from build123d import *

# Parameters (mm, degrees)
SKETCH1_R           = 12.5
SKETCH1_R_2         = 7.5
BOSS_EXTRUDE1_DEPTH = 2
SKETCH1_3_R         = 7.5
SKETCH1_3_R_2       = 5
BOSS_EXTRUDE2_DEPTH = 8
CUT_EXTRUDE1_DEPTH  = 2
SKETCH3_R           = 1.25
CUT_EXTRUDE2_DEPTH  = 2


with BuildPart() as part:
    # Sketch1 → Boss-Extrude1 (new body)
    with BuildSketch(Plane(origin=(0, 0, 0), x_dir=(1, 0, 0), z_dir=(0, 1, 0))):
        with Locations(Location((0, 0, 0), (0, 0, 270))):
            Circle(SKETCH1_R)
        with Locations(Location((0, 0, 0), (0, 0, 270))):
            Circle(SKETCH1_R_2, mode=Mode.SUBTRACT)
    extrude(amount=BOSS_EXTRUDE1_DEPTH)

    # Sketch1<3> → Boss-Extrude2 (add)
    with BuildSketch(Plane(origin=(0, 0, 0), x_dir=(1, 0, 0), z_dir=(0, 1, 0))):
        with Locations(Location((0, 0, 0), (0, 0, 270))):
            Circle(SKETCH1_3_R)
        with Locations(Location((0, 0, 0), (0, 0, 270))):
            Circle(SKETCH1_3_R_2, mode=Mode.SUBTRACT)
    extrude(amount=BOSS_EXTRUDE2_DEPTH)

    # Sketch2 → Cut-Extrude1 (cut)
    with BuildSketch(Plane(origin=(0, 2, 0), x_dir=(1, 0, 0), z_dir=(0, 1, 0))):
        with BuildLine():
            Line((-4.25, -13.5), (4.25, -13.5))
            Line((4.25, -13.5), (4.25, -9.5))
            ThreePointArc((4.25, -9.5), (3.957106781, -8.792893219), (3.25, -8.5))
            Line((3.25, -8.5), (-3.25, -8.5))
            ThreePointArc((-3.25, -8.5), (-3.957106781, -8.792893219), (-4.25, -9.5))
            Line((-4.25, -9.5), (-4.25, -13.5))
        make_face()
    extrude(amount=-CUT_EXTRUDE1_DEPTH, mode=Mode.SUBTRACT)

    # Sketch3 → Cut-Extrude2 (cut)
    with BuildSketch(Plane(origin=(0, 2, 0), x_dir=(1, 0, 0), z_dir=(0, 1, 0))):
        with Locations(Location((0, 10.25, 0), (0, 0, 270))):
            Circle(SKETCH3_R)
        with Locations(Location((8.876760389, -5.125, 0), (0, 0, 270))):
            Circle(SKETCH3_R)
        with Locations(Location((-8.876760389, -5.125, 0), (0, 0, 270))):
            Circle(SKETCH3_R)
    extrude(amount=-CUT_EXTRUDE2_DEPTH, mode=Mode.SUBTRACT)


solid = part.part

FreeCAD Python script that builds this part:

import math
import FreeCAD as App
import Part
import Sketcher
Q = App.Units.Quantity

doc = App.newDocument("Part")
body = doc.addObject("PartDesign::Body", "Body")

sketch1 = body.newObject("Sketcher::SketchObject", "Sketch")
sketch1.AttachmentSupport = (doc.getObject("XZ_Plane"), [""])
sketch1.MapMode = "FlatFace"
sketch1.addGeometry([
    Part.Circle(App.Vector(0, 0, 0), App.Vector(0, 0, 1), 12),
    Part.Circle(App.Vector(0, 0, 0), App.Vector(0, 0, 1), 8),
], False)
sketch1.addConstraint([
    Sketcher.Constraint("Coincident", 0, 3, -1, 1),
    Sketcher.Constraint("Coincident", 1, 3, -1, 1),
    Sketcher.Constraint("Diameter", 0, Q("25 mm")),
    Sketcher.Constraint("Diameter", 1, Q("15 mm")),
])
pad1 = body.newObject("PartDesign::Pad", "Pad")
pad1.Profile = sketch1
pad1.Length = 2
pad1.Reversed = True

sketch2 = body.newObject("Sketcher::SketchObject", "Sketch001")
sketch2.AttachmentSupport = (doc.getObject("XZ_Plane"), [""])
sketch2.MapMode = "FlatFace"
sketch2.addGeometry([
    Part.Circle(App.Vector(0, 0, 0), App.Vector(0, 0, 1), 8),
    Part.Circle(App.Vector(0, 0, 0), App.Vector(0, 0, 1), 5),
], False)
sketch2.addConstraint([
    Sketcher.Constraint("Coincident", 0, 3, -1, 1),
    Sketcher.Constraint("Coincident", 1, 3, -1, 1),
    Sketcher.Constraint("Diameter", 0, Q("15 mm")),
    Sketcher.Constraint("Diameter", 1, Q("10 mm")),
])
pad2 = body.newObject("PartDesign::Pad", "Pad001")
pad2.Profile = sketch2
pad2.Length = 8
pad2.Reversed = True

sketch3 = body.newObject("Sketcher::SketchObject", "Sketch002")
sketch3.AttachmentSupport = (doc.getObject("XZ_Plane"), [""])
sketch3.MapMode = "FlatFace"
sketch3.AttachmentOffset = App.Placement(App.Vector(0, 0, -2), App.Rotation())
sketch3.addGeometry([
    Part.LineSegment(App.Vector(-4.2, 13.5, 0), App.Vector(4.2, 13.5, 0)),
    Part.LineSegment(App.Vector(4.2, 13.5, 0), App.Vector(4.2, 9.5, 0)),
    Part.ArcOfCircle(Part.Circle(App.Vector(3.2, 9.5, 0), App.Vector(0, 0, 1), 1), math.radians(-90), math.radians(0)),
    Part.LineSegment(App.Vector(3.2, 8.5, 0), App.Vector(-3.2, 8.5, 0)),
    Part.ArcOfCircle(Part.Circle(App.Vector(-3.2, 9.5, 0), App.Vector(0, 0, 1), 1), math.radians(-180), math.radians(-90)),
    Part.LineSegment(App.Vector(-4.2, 9.5, 0), App.Vector(-4.2, 13.5, 0)),
], False)
sketch3.addConstraint([
    Sketcher.Constraint("Coincident", 0, 2, 1, 1),
    Sketcher.Constraint("Tangent", 1, 2, 2, 2),
    Sketcher.Constraint("Tangent", 2, 1, 3, 1),
    Sketcher.Constraint("Tangent", 3, 2, 4, 2),
    Sketcher.Constraint("Tangent", 4, 1, 5, 1),
    Sketcher.Constraint("Coincident", 5, 2, 0, 1),
    Sketcher.Constraint("Horizontal", 0),
    Sketcher.Constraint("Vertical", 1),
    Sketcher.Constraint("Horizontal", 3),
    Sketcher.Constraint("Vertical", 5),
    Sketcher.Constraint("Equal", 2, 4),
    Sketcher.Constraint("Radius", 2, Q("1 mm")),
    Sketcher.Constraint("DistanceY", 1, 2, 1, 1, Q("4 mm")),
    Sketcher.Constraint("DistanceX", 0, 1, 0, 2, Q("8.5 mm")),
    Sketcher.Constraint("DistanceY", -1, 1, 2, 3, Q("9.5 mm")),
    Sketcher.Constraint("DistanceX", -1, 1, 2, 3, Q("3.25 mm")),
])
pocket1 = body.newObject("PartDesign::Pocket", "Pocket")
pocket1.Profile = sketch3
pocket1.Length = 2
pocket1.Reversed = True

sketch4 = body.newObject("Sketcher::SketchObject", "Sketch003")
sketch4.AttachmentSupport = (doc.getObject("XZ_Plane"), [""])
sketch4.MapMode = "FlatFace"
sketch4.AttachmentOffset = App.Placement(App.Vector(0, 0, -2), App.Rotation())
sketch4.addGeometry([
    Part.Circle(App.Vector(0, -10.2, 0), App.Vector(0, 0, 1), 1.2),
    Part.Circle(App.Vector(8.9, 5.1, 0), App.Vector(0, 0, 1), 1.2),
    Part.Circle(App.Vector(-8.9, 5.1, 0), App.Vector(0, 0, 1), 1.2),
], False)
sketch4.addConstraint([
    Sketcher.Constraint("Equal", 0, 1),
    Sketcher.Constraint("Equal", 1, 2),
    Sketcher.Constraint("Symmetric", 1, 3, 2, 3, -2),
    Sketcher.Constraint("PointOnObject", 0, 3, -2),
    Sketcher.Constraint("Diameter", 0, Q("2.5 mm")),
    Sketcher.Constraint("DistanceY", 0, 3, -1, 1, Q("10.25 mm")),
    Sketcher.Constraint("DistanceY", -1, 1, 1, 3, Q("5.125 mm")),
    Sketcher.Constraint("DistanceX", -1, 1, 1, 3, Q("8.87676 mm")),
])
pocket2 = body.newObject("PartDesign::Pocket", "Pocket001")
pocket2.Profile = sketch4
pocket2.Length = 2
pocket2.Reversed = True

doc.recompute()
